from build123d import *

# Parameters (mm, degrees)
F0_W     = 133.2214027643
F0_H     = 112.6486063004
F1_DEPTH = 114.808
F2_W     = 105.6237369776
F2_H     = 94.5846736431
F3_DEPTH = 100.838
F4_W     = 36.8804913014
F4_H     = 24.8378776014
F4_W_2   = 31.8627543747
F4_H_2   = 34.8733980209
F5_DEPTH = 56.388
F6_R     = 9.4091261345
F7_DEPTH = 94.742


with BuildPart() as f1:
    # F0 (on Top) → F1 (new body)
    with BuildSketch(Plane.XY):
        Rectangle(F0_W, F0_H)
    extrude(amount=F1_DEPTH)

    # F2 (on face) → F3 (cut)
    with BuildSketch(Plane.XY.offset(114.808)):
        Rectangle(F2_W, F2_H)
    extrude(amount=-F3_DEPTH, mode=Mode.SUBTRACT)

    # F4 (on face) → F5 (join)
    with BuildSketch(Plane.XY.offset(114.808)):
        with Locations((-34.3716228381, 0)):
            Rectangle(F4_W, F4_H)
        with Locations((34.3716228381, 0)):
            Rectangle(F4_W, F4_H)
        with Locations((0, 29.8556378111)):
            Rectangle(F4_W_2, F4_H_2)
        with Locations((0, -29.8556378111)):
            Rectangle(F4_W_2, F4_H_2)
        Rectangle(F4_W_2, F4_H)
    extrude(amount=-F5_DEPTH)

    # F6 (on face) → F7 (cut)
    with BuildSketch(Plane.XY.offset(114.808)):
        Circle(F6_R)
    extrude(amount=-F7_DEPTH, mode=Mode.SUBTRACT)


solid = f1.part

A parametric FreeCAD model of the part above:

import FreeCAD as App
import Part
import Sketcher
Q = App.Units.Quantity

doc = App.newDocument("Part")
body = doc.addObject("PartDesign::Body", "Body")

# Sketch on XY plane
sketch1 = body.newObject("Sketcher::SketchObject", "Sketch")
sketch1.AttachmentSupport = (doc.getObject("XY_Plane"), [""])
sketch1.MapMode = "FlatFace"
sketch1.addGeometry([
    Part.LineSegment(App.Vector(-67, 56, 0), App.Vector(-67, -56, 0)),
    Part.LineSegment(App.Vector(-67, -56, 0), App.Vector(67, -56, 0)),
    Part.LineSegment(App.Vector(67, -56, 0), App.Vector(67, 56, 0)),
    Part.LineSegment(App.Vector(67, 56, 0), App.Vector(-67, 56, 0)),
], False)
sketch1.addConstraint([
    Sketcher.Constraint("Coincident", 0, 2, 1, 1),
    Sketcher.Constraint("Coincident", 1, 2, 2, 1),
    Sketcher.Constraint("Coincident", 2, 2, 3, 1),
    Sketcher.Constraint("Coincident", 3, 2, 0, 1),
    Sketcher.Constraint("Vertical", 0),
    Sketcher.Constraint("Horizontal", 1),
    Sketcher.Constraint("Vertical", 2),
    Sketcher.Constraint("Horizontal", 3),
    Sketcher.Constraint("Symmetric", 0, 2, 2, 2, -1, 1),
    Sketcher.Constraint("DistanceX", 0, 2, -1, 1, Q("66.610701 mm")),
    Sketcher.Constraint("DistanceY", 0, 2, 0, 1, Q("112.648606 mm")),
])
pad1 = body.newObject("PartDesign::Pad", "Pad")
pad1.Profile = sketch1
pad1.Length = Q("4.52 in")

# Sketch on XY plane
sketch2 = body.newObject("Sketcher::SketchObject", "Sketch001")
sketch2.AttachmentSupport = (doc.getObject("XY_Plane"), [""])
sketch2.MapMode = "FlatFace"
sketch2.AttachmentOffset = App.Placement(App.Vector(0, 0, 4.52 * 25.4), App.Rotation())
sketch2.addGeometry([
    Part.LineSegment(App.Vector(-53, 47, 0), App.Vector(-53, -47, 0)),
    Part.LineSegment(App.Vector(-53, -47, 0), App.Vector(53, -47, 0)),
    Part.LineSegment(App.Vector(53, -47, 0), App.Vector(53, 47, 0)),
    Part.LineSegment(App.Vector(53, 47, 0), App.Vector(-53, 47, 0)),
], False)
sketch2.addConstraint([
    Sketcher.Constraint("Coincident", 0, 2, 1, 1),
    Sketcher.Constraint("Coincident", 1, 2, 2, 1),
    Sketcher.Constraint("Coincident", 2, 2, 3, 1),
    Sketcher.Constraint("Coincident", 3, 2, 0, 1),
    Sketcher.Constraint("Vertical", 0),
    Sketcher.Constraint("Horizontal", 1),
    Sketcher.Constraint("Vertical", 2),
    Sketcher.Constraint("Horizontal", 3),
    Sketcher.Constraint("Symmetric", 0, 2, 2, 2, -1, 1),
    Sketcher.Constraint("DistanceX", 1, 1, 1, 2, Q("105.623737 mm")),
    Sketcher.Constraint("DistanceY", 0, 2, 0, 1, Q("94.584674 mm")),
])
pocket1 = body.newObject("PartDesign::Pocket", "Pocket")
pocket1.Profile = sketch2
pocket1.Length = Q("3.97 in")

# Sketch on XY plane
sketch3 = body.newObject("Sketcher::SketchObject", "Sketch002")
sketch3.AttachmentSupport = (doc.getObject("XY_Plane"), [""])
sketch3.MapMode = "FlatFace"
sketch3.AttachmentOffset = App.Placement(App.Vector(0, 0, 4.52 * 25.4), App.Rotation())
sketch3.addGeometry([
    Part.LineSegment(App.Vector(-53, 12, 0), App.Vector(-53, -12, 0)),  # 0
    Part.LineSegment(App.Vector(-53, -12, 0), App.Vector(-16, -12, 0)),  # 1
    Part.LineSegment(App.Vector(-16, -12, 0), App.Vector(-16, -47, 0)),  # 2
    Part.LineSegment(App.Vector(-16, -47, 0), App.Vector(16, -47, 0)),  # 3
    Part.LineSegment(App.Vector(16, -47, 0), App.Vector(16, -12, 0)),  # 4
    Part.LineSegment(App.Vector(16, -12, 0), App.Vector(53, -12, 0)),  # 5
    Part.LineSegment(App.Vector(53, -12, 0), App.Vector(53, 12, 0)),  # 6
    Part.LineSegment(App.Vector(53, 12, 0), App.Vector(16, 12, 0)),  # 7
    Part.LineSegment(App.Vector(16, 12, 0), App.Vector(16, 47, 0)),  # 8
    Part.LineSegment(App.Vector(16, 47, 0), App.Vector(-16, 47, 0)),  # 9
    Part.LineSegment(App.Vector(-16, 47, 0), App.Vector(-16, 12, 0)),  # 10
    Part.LineSegment(App.Vector(-16, 12, 0), App.Vector(-53, 12, 0)),  # 11
], False)
sketch3.addConstraint([
    Sketcher.Constraint("Coincident", 0, 2, 1, 1),
    Sketcher.Constraint("Coincident", 1, 2, 2, 1),
    Sketcher.Constraint("Coincident", 2, 2, 3, 1),
    Sketcher.Constraint("Coincident", 3, 2, 4, 1),
    Sketcher.Constraint("Coincident", 4, 2, 5, 1),
    Sketcher.Constraint("Coincident", 5, 2, 6, 1),
    Sketcher.Constraint("Coincident", 6, 2, 7, 1),
    Sketcher.Constraint("Coincident", 7, 2, 8, 1),
    Sketcher.Constraint("Coincident", 8, 2, 9, 1),
    Sketcher.Constraint("Coincident", 9, 2, 10, 1),
    Sketcher.Constraint("Coincident", 10, 2, 11, 1),
    Sketcher.Constraint("Coincident", 11, 2, 0, 1),
    Sketcher.Constraint("Vertical", 0),
    Sketcher.Constraint("Horizontal", 1),
    Sketcher.Constraint("Vertical", 2),
    Sketcher.Constraint("Horizontal", 3),
    Sketcher.Constraint("Vertical", 4),
    Sketcher.Constraint("Horizontal", 5),
    Sketcher.Constraint("Vertical", 6),
    Sketcher.Constraint("Horizontal", 7),
    Sketcher.Constraint("Vertical", 8),
    Sketcher.Constraint("Horizontal", 9),
    Sketcher.Constraint("Vertical", 10),
    Sketcher.Constraint("Horizontal", 11),
    Sketcher.Constraint("Symmetric", 0, 2, 6, 2, -1, 1),
    Sketcher.Constraint("Symmetric", 2, 2, 8, 2, -1, 1),
    Sketcher.Constraint("Symmetric", 4, 2, 10, 2, -1, 1),
    Sketcher.Constraint("Symmetric", 1, 2, 4, 2, -2),
    Sketcher.Constraint("DistanceY", 2, 2, 2, 1, Q("34.873398 mm")),
    Sketcher.Constraint("DistanceX", 1, 1, 1, 2, Q("36.880491 mm")),
    Sketcher.Constraint("DistanceX", 3, 1, 3, 2, Q("31.862754 mm")),
    Sketcher.Constraint("DistanceY", 0, 2, 0, 1, Q("24.837878 mm")),
])
pad2 = body.newObject("PartDesign::Pad", "Pad001")
pad2.Profile = sketch3
pad2.Length = Q("2.22 in")
pad2.Reversed = True

# Sketch on XY plane
sketch4 = body.newObject("Sketcher::SketchObject", "Sketch003")
sketch4.AttachmentSupport = (doc.getObject("XY_Plane"), [""])
sketch4.MapMode = "FlatFace"
sketch4.AttachmentOffset = App.Placement(App.Vector(0, 0, 4.52 * 25.4), App.Rotation())
sketch4.addGeometry(Part.Circle(App.Vector(0, 0, 0), App.Vector(0, 0, 1), 9), False)
sketch4.addConstraint([
    Sketcher.Constraint("Coincident", 0, 3, -1, 1),
    Sketcher.Constraint("Diameter", 0, Q("18.818252 mm")),
])
pocket2 = body.newObject("PartDesign::Pocket", "Pocket001")
pocket2.Profile = sketch4
pocket2.Length = Q("3.73 in")

doc.recompute()
